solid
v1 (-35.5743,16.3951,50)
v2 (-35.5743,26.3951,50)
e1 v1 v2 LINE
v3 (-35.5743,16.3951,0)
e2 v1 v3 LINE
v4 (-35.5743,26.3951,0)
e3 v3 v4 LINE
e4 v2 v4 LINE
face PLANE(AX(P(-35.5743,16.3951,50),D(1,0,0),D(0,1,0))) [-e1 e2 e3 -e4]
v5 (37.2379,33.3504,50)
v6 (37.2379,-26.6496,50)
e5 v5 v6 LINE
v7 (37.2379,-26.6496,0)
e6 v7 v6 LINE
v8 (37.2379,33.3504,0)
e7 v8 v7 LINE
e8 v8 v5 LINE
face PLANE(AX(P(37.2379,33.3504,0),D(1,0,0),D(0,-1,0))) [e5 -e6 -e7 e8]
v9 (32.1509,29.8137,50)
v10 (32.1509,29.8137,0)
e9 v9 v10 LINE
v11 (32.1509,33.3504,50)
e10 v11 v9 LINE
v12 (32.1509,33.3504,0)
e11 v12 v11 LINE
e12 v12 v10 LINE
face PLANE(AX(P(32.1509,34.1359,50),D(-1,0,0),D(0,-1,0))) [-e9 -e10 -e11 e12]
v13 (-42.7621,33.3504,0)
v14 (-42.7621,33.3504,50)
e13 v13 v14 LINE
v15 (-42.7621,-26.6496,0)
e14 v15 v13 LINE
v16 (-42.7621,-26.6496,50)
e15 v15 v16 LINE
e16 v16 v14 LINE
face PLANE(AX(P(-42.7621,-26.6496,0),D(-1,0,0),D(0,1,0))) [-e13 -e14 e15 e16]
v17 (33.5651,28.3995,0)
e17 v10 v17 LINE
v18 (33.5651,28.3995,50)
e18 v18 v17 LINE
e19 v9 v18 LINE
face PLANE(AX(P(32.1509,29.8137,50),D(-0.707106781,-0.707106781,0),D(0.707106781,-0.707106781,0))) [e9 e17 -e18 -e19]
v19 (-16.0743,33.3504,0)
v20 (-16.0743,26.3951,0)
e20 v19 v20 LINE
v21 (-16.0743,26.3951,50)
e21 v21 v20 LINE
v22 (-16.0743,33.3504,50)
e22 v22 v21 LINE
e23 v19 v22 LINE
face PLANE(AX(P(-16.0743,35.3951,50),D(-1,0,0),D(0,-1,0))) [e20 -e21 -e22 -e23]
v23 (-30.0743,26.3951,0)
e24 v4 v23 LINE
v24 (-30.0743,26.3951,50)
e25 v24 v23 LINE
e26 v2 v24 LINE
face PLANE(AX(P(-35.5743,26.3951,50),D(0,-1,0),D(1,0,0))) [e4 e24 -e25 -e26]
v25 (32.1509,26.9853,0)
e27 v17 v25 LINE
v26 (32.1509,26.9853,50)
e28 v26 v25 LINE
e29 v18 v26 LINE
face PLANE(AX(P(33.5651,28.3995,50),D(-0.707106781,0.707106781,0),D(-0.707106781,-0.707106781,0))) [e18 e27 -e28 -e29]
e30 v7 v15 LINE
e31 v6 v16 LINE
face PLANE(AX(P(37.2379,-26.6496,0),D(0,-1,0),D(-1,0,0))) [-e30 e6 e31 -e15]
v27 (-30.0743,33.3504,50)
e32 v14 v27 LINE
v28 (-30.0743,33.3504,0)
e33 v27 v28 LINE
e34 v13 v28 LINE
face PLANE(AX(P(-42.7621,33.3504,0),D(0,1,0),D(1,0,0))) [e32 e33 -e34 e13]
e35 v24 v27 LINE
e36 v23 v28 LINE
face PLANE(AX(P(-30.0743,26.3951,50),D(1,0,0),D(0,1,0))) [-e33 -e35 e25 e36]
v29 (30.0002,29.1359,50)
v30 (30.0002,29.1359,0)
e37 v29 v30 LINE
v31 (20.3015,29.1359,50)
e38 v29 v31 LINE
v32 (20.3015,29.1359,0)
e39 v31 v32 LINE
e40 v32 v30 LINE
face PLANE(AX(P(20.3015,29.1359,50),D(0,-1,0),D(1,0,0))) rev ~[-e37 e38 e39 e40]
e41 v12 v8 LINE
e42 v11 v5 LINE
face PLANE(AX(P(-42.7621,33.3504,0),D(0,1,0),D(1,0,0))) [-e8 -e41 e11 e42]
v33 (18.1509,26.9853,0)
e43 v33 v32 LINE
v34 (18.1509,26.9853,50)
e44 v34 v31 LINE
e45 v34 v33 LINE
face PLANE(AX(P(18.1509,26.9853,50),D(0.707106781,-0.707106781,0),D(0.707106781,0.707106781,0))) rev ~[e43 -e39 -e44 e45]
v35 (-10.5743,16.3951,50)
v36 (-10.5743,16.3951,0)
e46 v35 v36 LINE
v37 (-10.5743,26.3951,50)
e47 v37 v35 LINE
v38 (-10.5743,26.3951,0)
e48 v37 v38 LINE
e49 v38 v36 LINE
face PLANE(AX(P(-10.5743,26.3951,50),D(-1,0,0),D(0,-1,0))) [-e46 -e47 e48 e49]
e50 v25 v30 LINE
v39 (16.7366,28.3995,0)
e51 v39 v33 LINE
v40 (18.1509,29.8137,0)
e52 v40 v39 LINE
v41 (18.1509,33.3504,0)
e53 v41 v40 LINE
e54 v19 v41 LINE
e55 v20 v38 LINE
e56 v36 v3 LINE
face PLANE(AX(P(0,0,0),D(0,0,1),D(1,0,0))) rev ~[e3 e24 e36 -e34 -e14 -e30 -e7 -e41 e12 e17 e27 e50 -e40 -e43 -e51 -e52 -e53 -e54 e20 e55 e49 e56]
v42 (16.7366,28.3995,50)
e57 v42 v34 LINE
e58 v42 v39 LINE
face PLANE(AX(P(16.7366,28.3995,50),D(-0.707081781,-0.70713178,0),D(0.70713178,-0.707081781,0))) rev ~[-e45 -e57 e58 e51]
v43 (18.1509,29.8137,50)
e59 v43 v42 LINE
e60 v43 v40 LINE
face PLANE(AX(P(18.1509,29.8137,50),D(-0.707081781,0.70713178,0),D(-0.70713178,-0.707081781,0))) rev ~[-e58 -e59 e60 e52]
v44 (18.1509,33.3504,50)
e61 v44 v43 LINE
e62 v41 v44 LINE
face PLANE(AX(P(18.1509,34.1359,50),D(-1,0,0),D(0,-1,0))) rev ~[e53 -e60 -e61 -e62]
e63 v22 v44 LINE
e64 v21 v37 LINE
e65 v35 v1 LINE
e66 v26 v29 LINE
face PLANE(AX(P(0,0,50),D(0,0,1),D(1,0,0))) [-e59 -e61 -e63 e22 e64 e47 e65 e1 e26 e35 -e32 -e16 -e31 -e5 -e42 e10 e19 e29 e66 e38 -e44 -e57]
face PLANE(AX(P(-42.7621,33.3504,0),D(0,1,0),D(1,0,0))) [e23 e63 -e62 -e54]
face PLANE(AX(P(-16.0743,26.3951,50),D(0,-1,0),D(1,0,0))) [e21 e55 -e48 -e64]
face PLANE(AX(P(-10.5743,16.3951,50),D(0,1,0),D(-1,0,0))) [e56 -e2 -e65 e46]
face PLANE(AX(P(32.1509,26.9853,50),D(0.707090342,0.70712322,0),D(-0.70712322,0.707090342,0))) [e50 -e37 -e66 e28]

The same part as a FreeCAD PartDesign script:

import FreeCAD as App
import Part
import Sketcher
from FreeCAD import Vector
Q = App.Units.Quantity


def add_polygon(sketch, points):
    """Adds a closed chain of lines whose ends are joined by coincident constraints."""
    first, n = sketch.GeometryCount, len(points)
    for a, b in zip(points, points[1:] + points[:1]):
        sketch.addGeometry(Part.LineSegment(App.Vector(*a, 0), App.Vector(*b, 0)), False)
    for i in range(n):
        sketch.addConstraint(Sketcher.Constraint("Coincident", first + i, 2, first + (i + 1) % n, 1))

doc = App.newDocument("Part")
body = doc.addObject("PartDesign::Body", "Body")

# Sketch on XY plane
sketch1 = body.newObject("Sketcher::SketchObject", "Sketch")
sketch1.AttachmentSupport = (doc.getObject("XY_Plane"), [""])
sketch1.MapMode = "FlatFace"
add_polygon(sketch1, [(37, 33), (-43, 33), (-43, -27), (37, -27)])  # lines 0-3
sketch1.addConstraint([
    Sketcher.Constraint("Horizontal", 0),
    Sketcher.Constraint("Vertical", 1),
    Sketcher.Constraint("Horizontal", 2),
    Sketcher.Constraint("Vertical", 3),
    Sketcher.Constraint("DistanceX", 0, 2, 0, 1, Q("80 mm")),
    Sketcher.Constraint("DistanceY", 1, 2, 1, 1, Q("60 mm")),
    Sketcher.Constraint("DistanceX", 0, 2, -1, 1, Q("42.762 mm")),
    Sketcher.Constraint("DistanceY", -1, 1, 0, 2, Q("33.3504 mm")),
])
pad1 = body.newObject("PartDesign::Pad", "Pad")
pad1.Profile = sketch1
pad1.Length = 50

# Sketch on XY plane
sketch2 = body.newObject("Sketcher::SketchObject", "Sketch001")
sketch2.AttachmentSupport = (doc.getObject("XY_Plane"), [""])
sketch2.MapMode = "FlatFace"
sketch2.AttachmentOffset = App.Placement(Vector(0, 0, 50), App.Rotation())
add_polygon(sketch2, [(-16, 35), (-30, 35), (-30, 26), (-36, 26), (-36, 16), (-11, 16), (-11, 26), (-16, 26)])  # lines 0-7
sketch2.addConstraint([
    Sketcher.Constraint("Horizontal", 0),
    Sketcher.Constraint("Vertical", 1),
    Sketcher.Constraint("Horizontal", 2),
    Sketcher.Constraint("Vertical", 3),
    Sketcher.Constraint("Horizontal", 4),
    Sketcher.Constraint("Vertical", 5),
    Sketcher.Constraint("Horizontal", 6),
    Sketcher.Constraint("Vertical", 7),
    Sketcher.Constraint("Horizontal", 2, 2, 5, 2),
    Sketcher.Constraint("Equal", 2, 6),
    Sketcher.Constraint("DistanceX", 0, 2, 0, 1, Q("14 mm")),
    Sketcher.Constraint("DistanceX", 4, 1, 4, 2, Q("25 mm")),
    Sketcher.Constraint("DistanceY", 1, 2, 1, 1, Q("9 mm")),
    Sketcher.Constraint("DistanceY", 3, 2, 3, 1, Q("10 mm")),
    Sketcher.Constraint("DistanceY", -1, 1, 0, 2, Q("35.395 mm")),
    Sketcher.Constraint("DistanceX", 0, 2, -1, 1, Q("30.0743 mm")),
])
pocket1 = body.newObject("PartDesign::Pocket", "Pocket")
pocket1.Profile = sketch2
pocket1.Length = 50

# Sketch on XY plane
sketch3 = body.newObject("Sketcher::SketchObject", "Sketch002")
sketch3.AttachmentSupport = (doc.getObject("XY_Plane"), [""])
sketch3.MapMode = "FlatFace"
sketch3.AttachmentOffset = App.Placement(Vector(0, 0, 50), App.Rotation())
add_polygon(sketch3, [(32.2, 34.1), (18.2, 34.1), (18.2, 29.8), (16.7, 28.4), (18.2, 27), (20.3, 29.1), (30, 29.1), (32.2, 27), (33.6, 28.4), (32.2, 29.8)])  # lines 0-9
sketch3.addConstraint([
    Sketcher.Constraint("Horizontal", 0),
    Sketcher.Constraint("Vertical", 1),
    Sketcher.Constraint("Horizontal", 5),
    Sketcher.Constraint("Vertical", 9),
    Sketcher.Constraint("Perpendicular", 2, 3),
    Sketcher.Constraint("Perpendicular", 3, 4),
    Sketcher.Constraint("Perpendicular", 4, 6),
    Sketcher.Constraint("Perpendicular", 6, 7),
    Sketcher.Constraint("Perpendicular", 7, 8),
    Sketcher.Constraint("Horizontal", 3, 2, 6, 2),
    Sketcher.Constraint("Horizontal", 2, 2, 7, 2),
    Sketcher.Constraint("Horizontal", 1, 2, 8, 2),
    Sketcher.Constraint("Vertical", 1, 2, 3, 2),
    Sketcher.Constraint("Vertical", 6, 2, 8, 2),
    Sketcher.Constraint("Distance", 2, Q("2 mm")),
    Sketcher.Constraint("DistanceY", 4, 2, 0, 2, Q("5 mm")),
    Sketcher.Constraint("DistanceX", 0, 2, 0, 1, Q("14 mm")),
    Sketcher.Constraint("DistanceY", 1, 2, 1, 1, Q("4.3222 mm")),
    Sketcher.Constraint("DistanceX", -1, 1, 0, 2, Q("18.151 mm")),
    Sketcher.Constraint("DistanceY", -1, 1, 0, 2, Q("34.136 mm")),
])
pocket2 = body.newObject("PartDesign::Pocket", "Pocket001")
pocket2.Profile = sketch3
pocket2.Length = 50

doc.recompute()
